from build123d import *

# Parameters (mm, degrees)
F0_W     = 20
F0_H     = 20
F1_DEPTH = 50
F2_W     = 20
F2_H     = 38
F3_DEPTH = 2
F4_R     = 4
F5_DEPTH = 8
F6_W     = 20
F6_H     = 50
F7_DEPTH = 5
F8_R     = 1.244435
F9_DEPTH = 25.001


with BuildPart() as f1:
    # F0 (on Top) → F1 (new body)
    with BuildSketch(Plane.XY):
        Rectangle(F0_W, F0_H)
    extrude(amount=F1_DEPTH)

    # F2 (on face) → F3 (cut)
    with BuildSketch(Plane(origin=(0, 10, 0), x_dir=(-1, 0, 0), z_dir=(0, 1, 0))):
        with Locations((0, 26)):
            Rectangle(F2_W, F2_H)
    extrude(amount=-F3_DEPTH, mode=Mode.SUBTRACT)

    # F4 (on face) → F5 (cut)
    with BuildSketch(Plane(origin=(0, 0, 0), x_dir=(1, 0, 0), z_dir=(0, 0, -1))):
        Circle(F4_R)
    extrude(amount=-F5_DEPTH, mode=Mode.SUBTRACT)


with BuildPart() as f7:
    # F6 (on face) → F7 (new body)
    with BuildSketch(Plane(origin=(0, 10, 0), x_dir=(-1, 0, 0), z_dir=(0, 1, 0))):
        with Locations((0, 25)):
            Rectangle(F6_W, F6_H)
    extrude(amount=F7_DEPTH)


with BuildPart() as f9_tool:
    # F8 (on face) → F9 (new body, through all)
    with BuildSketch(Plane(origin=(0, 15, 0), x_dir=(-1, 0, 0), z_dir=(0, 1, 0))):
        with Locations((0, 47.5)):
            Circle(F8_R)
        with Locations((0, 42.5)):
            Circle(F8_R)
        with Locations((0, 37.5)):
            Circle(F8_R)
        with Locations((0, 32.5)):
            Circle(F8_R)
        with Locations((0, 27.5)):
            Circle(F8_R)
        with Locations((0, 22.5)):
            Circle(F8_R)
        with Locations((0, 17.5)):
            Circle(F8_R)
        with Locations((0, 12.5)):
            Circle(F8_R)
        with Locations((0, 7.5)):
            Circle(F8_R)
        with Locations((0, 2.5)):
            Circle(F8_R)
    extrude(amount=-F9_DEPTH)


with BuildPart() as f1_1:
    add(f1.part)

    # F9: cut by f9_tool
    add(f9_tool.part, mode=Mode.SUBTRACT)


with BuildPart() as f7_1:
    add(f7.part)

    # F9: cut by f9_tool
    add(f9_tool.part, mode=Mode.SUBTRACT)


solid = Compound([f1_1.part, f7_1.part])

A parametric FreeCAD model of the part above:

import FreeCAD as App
import Part
import Sketcher

V = App.Vector


def add_polygon(sketch, points):
    """Adds a closed chain of lines whose ends are joined by coincident constraints."""
    first, n = sketch.GeometryCount, len(points)
    for a, b in zip(points, points[1:] + points[:1]):
        sketch.addGeometry(Part.LineSegment(App.Vector(*a, 0), App.Vector(*b, 0)), False)
    for i in range(n):
        sketch.addConstraint(Sketcher.Constraint("Coincident", first + i, 2, first + (i + 1) % n, 1))

doc = App.newDocument("Part")
params = doc.addObject("Spreadsheet::Sheet", "Params")
for row, (alias, value) in enumerate([
    ("sketch1_width", "20 mm"),
    ("pad1_length", "50 mm"),
    ("sketch2_width", "20 mm"),
    ("sketch2_height", "38 mm"),
    ("pocket1_length", "2 mm"),
    ("sketch3_diameter", "8 mm"),
    ("pocket2_length", "8 mm"),
    ("sketch4_width", "20 mm"),
    ("sketch4_height", "50 mm"),
    ("pad2_length", "5 mm"),
    ("pad3_length", "25.001 mm"),
], start=1):
    params.set(f"A{row}", alias)
    params.set(f"B{row}", "=" + value)
    params.setAlias(f"B{row}", alias)

body = doc.addObject("PartDesign::Body", "Body")

# Sketch on XY plane
sketch1 = doc.addObject("Sketcher::SketchObject", "Sketch")
body.addObject(sketch1)
sketch1.AttachmentSupport = (doc.XY_Plane, [""])
sketch1.MapMode = "FlatFace"
add_polygon(sketch1, [(-10, 10), (-10, -10), (10, -10), (10, 10)])  # lines 0-3
sketch1.addConstraint([
    Sketcher.Constraint("Vertical", 0),
    Sketcher.Constraint("Horizontal", 1),
    Sketcher.Constraint("Vertical", 2),
    Sketcher.Constraint("Horizontal", 3),
    Sketcher.Constraint("Symmetric", 0, 2, 2, 2, -1, 1),
    Sketcher.Constraint("Equal", 3, 0),
    Sketcher.Constraint("DistanceX", 1, 1, 1, 2, 20.0),
])
sketch1.setExpression("Constraints[10]", "Params.sketch1_width")
pad1 = doc.addObject("PartDesign::Pad", "Pad")
body.addObject(pad1)
pad1.Profile = sketch1
pad1.setExpression("Length", "Params.pad1_length")

# Sketch on XZ plane
sketch2 = doc.addObject("Sketcher::SketchObject", "Sketch001")
body.addObject(sketch2)
sketch2.AttachmentSupport = (doc.XZ_Plane, [""])
sketch2.MapMode = "FlatFace"
sketch2.AttachmentOffset = App.Placement(V(0, 0, -10), App.Rotation())
add_polygon(sketch2, [(10, 45), (10, 7), (-10, 7), (-10, 45)])  # lines 0-3
sketch2.addConstraint([
    Sketcher.Constraint("Vertical", 0),
    Sketcher.Constraint("Horizontal", 1),
    Sketcher.Constraint("Vertical", 2),
    Sketcher.Constraint("Horizontal", 3),
    Sketcher.Constraint("DistanceX", 1, 2, 1, 1, 20.0),
    Sketcher.Constraint("DistanceY", 0, 2, 0, 1, 38.0),
    Sketcher.Constraint("DistanceX", -1, 1, 0, 2, 10.0),
    Sketcher.Constraint("DistanceY", -1, 1, 0, 2, 7.0),
])
sketch2.setExpression("Constraints[8]", "Params.sketch2_width")
sketch2.setExpression("Constraints[9]", "Params.sketch2_height")
pocket1 = doc.addObject("PartDesign::Pocket", "Pocket")
body.addObject(pocket1)
pocket1.Profile = sketch2
pocket1.setExpression("Length", "Params.pocket1_length")
pocket1.Reversed = True

# Sketch on XY plane
sketch3 = doc.addObject("Sketcher::SketchObject", "Sketch002")
body.addObject(sketch3)
sketch3.AttachmentSupport = (doc.XY_Plane, [""])
sketch3.MapMode = "FlatFace"
sketch3.addGeometry(Part.Circle(V(0, 0, 0), V(0, 0, 1), 4), False)
sketch3.addConstraint([
    Sketcher.Constraint("Coincident", 0, 3, -1, 1),
    Sketcher.Constraint("Diameter", 0, 8.0),
])
sketch3.setExpression("Constraints[1]", "Params.sketch3_diameter")
pocket2 = doc.addObject("PartDesign::Pocket", "Pocket001")
body.addObject(pocket2)
pocket2.Profile = sketch3
pocket2.setExpression("Length", "Params.pocket2_length")
pocket2.Reversed = True
body2 = doc.addObject("PartDesign::Body", "Body001")

# Sketch on XZ plane
sketch4 = doc.addObject("Sketcher::SketchObject", "Sketch003")
body2.addObject(sketch4)
sketch4.AttachmentSupport = (doc.getObject("XZ_Plane001"), [""])
sketch4.MapMode = "FlatFace"
sketch4.AttachmentOffset = App.Placement(V(0, 0, -10), App.Rotation())
add_polygon(sketch4, [(10, 50), (10, 0), (-10, 0), (-10, 50)])  # lines 0-3
sketch4.addConstraint([
    Sketcher.Constraint("Vertical", 0),
    Sketcher.Constraint("Horizontal", 1),
    Sketcher.Constraint("Vertical", 2),
    Sketcher.Constraint("Horizontal", 3),
    Sketcher.Constraint("Symmetric", 0, 2, 1, 2, -1, 1),
    Sketcher.Constraint("DistanceX", 1, 2, 1, 1, 20.0),
    Sketcher.Constraint("DistanceY", 0, 2, 0, 1, 50.0),
])
sketch4.setExpression("Constraints[9]", "Params.sketch4_width")
sketch4.setExpression("Constraints[10]", "Params.sketch4_height")
pad2 = doc.addObject("PartDesign::Pad", "Pad001")
body2.addObject(pad2)
pad2.Profile = sketch4
pad2.setExpression("Length", "Params.pad2_length")
pad2.Reversed = True
body3 = doc.addObject("PartDesign::Body", "Body002")
body3.AllowCompound = True

# Sketch on XZ plane
sketch5 = doc.addObject("Sketcher::SketchObject", "Sketch004")
body3.addObject(sketch5)
sketch5.AttachmentSupport = (doc.getObject("XZ_Plane002"), [""])
sketch5.MapMode = "FlatFace"
sketch5.AttachmentOffset = App.Placement(V(0, 0, -15), App.Rotation())
sketch5.addGeometry([
    Part.Circle(V(0, 47.5, 0), V(0, 0, 1), 1.2),  # 0
    Part.Circle(V(0, 42.5, 0), V(0, 0, 1), 1.2),  # 1
    Part.Circle(V(0, 37.5, 0), V(0, 0, 1), 1.2),  # 2
    Part.Circle(V(0, 32.5, 0), V(0, 0, 1), 1.2),  # 3
    Part.Circle(V(0, 27.5, 0), V(0, 0, 1), 1.2),  # 4
    Part.Circle(V(0, 22.5, 0), V(0, 0, 1), 1.2),  # 5
    Part.Circle(V(0, 17.5, 0), V(0, 0, 1), 1.2),  # 6
    Part.Circle(V(0, 12.5, 0), V(0, 0, 1), 1.2),  # 7
    Part.Circle(V(0, 7.5, 0), V(0, 0, 1), 1.2),  # 8
    Part.Circle(V(0, 2.5, 0), V(0, 0, 1), 1.2),  # 9
], False)
sketch5.addConstraint([
    Sketcher.Constraint("Equal", 0, 1),
    Sketcher.Constraint("Equal", 1, 2),
    Sketcher.Constraint("Equal", 2, 3),
    Sketcher.Constraint("Equal", 3, 4),
    Sketcher.Constraint("Equal", 4, 5),
    Sketcher.Constraint("Equal", 5, 6),
    Sketcher.Constraint("Equal", 6, 7),
    Sketcher.Constraint("Equal", 7, 8),
    Sketcher.Constraint("Equal", 8, 9),
    Sketcher.Constraint("PointOnObject", 0, 3, -2),
    Sketcher.Constraint("PointOnObject", 1, 3, -2),
    Sketcher.Constraint("PointOnObject", 2, 3, -2),
    Sketcher.Constraint("PointOnObject", 3, 3, -2),
    Sketcher.Constraint("PointOnObject", 4, 3, -2),
    Sketcher.Constraint("PointOnObject", 5, 3, -2),
    Sketcher.Constraint("PointOnObject", 6, 3, -2),
    Sketcher.Constraint("PointOnObject", 7, 3, -2),
    Sketcher.Constraint("PointOnObject", 8, 3, -2),
    Sketcher.Constraint("PointOnObject", 9, 3, -2),
    Sketcher.Constraint("DistanceY", 1, 3, 0, 3, 5.0),
    Sketcher.Constraint("DistanceY", 2, 3, 1, 3, 5.0),
    Sketcher.Constraint("DistanceY", 3, 3, 2, 3, 5.0),
    Sketcher.Constraint("DistanceY", 4, 3, 3, 3, 5.0),
    Sketcher.Constraint("DistanceY", 5, 3, 4, 3, 5.0),
    Sketcher.Constraint("DistanceY", 6, 3, 5, 3, 5.0),
    Sketcher.Constraint("DistanceY", 7, 3, 6, 3, 5.0),
    Sketcher.Constraint("DistanceY", 8, 3, 7, 3, 5.0),
    Sketcher.Constraint("DistanceY", 9, 3, 8, 3, 5.0),
    Sketcher.Constraint("DistanceY", -1, 1, 0, 3, 47.5),
    Sketcher.Constraint("Diameter", 0, 2.48887),
])
pad3 = doc.addObject("PartDesign::Pad", "Pad002")
body3.addObject(pad3)
pad3.Profile = sketch5
pad3.setExpression("Length", "Params.pad3_length")
doc.recompute()

body4 = doc.addObject("PartDesign::Body", "Body003")
body4.BaseFeature = body3
boolean = doc.addObject("PartDesign::Boolean", "Boolean")
body.addObject(boolean)
boolean.Type = "Cut"
boolean.addObjects([body4])
doc.recompute()

boolean2 = doc.addObject("PartDesign::Boolean", "Boolean001")
body2.addObject(boolean2)
boolean2.Type = "Cut"
boolean2.addObjects([body3])

doc.recompute()
